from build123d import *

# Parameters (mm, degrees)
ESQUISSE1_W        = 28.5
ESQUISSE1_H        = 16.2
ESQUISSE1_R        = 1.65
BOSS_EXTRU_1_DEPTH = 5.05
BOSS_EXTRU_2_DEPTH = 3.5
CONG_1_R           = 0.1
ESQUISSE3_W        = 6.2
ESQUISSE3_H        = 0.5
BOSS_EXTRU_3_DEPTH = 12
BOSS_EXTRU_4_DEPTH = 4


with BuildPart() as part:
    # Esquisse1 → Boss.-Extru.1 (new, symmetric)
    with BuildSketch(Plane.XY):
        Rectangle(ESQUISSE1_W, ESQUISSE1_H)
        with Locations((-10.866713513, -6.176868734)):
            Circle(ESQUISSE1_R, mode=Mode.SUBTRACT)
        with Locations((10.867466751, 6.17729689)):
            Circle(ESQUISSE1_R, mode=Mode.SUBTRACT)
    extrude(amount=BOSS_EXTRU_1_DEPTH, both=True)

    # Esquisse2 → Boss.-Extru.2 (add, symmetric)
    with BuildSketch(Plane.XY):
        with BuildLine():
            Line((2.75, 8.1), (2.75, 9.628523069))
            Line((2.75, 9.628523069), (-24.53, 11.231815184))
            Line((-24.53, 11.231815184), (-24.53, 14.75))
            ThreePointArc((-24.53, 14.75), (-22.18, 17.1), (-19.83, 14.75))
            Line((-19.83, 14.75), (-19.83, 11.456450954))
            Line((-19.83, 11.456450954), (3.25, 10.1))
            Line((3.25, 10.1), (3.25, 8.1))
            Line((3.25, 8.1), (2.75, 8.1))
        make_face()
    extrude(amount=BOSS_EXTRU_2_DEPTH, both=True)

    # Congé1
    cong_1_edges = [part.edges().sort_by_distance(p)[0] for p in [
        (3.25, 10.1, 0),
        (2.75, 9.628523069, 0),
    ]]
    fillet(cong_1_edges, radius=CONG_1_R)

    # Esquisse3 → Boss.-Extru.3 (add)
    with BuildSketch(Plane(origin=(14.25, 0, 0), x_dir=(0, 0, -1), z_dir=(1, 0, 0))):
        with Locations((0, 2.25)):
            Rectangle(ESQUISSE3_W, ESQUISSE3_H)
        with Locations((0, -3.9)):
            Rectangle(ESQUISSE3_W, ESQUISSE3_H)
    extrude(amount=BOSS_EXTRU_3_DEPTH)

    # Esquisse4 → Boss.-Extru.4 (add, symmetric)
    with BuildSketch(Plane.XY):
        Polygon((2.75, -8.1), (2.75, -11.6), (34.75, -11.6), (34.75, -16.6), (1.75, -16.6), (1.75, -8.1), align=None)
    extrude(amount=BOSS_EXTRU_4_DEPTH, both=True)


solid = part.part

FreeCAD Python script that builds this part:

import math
import FreeCAD as App
import Part
import Sketcher
Q = App.Units.Quantity


def edges_at(feature, points):
    """Names of the edges that pass closest to the given points."""
    edges = feature.Shape.Edges
    near = lambda p: min(range(len(edges)), key=lambda i: edges[i].distToShape(Part.Vertex(*p))[0])
    return sorted({f"Edge{near(p) + 1}" for p in points})


def add_polygon(sketch, points):
    """Adds a closed chain of lines whose ends are joined by coincident constraints."""
    first, n = sketch.GeometryCount, len(points)
    for a, b in zip(points, points[1:] + points[:1]):
        sketch.addGeometry(Part.LineSegment(App.Vector(*a, 0), App.Vector(*b, 0)), False)
    for i in range(n):
        sketch.addConstraint(Sketcher.Constraint("Coincident", first + i, 2, first + (i + 1) % n, 1))

doc = App.newDocument("Part")
body = doc.addObject("PartDesign::Body", "Body")

# Sketch on XY plane
sketch1 = body.newObject("Sketcher::SketchObject", "Sketch")
sketch1.AttachmentSupport = (doc.getObject("XY_Plane"), [""])
sketch1.MapMode = "FlatFace"
add_polygon(sketch1, [(-14.25, 8.1), (-14.25, -8.1), (14.25, -8.1), (14.25, 8.1)])  # lines 0-3
sketch1.addGeometry(Part.Circle(App.Vector(-10.866714, -6.176869, 0), App.Vector(0, 0, 1), 1.65), False)  # 4
sketch1.addGeometry(Part.Circle(App.Vector(10.867467, 6.177297, 0), App.Vector(0, 0, 1), 1.65), False)  # 5
sketch1.addConstraint(Sketcher.Constraint("Vertical", 0))
sketch1.addConstraint(Sketcher.Constraint("Horizontal", 1))
sketch1.addConstraint(Sketcher.Constraint("Vertical", 2))
sketch1.addConstraint(Sketcher.Constraint("Horizontal", 3))
sketch1.addConstraint(Sketcher.Constraint("Equal", 4, 5))
sketch1.addConstraint(Sketcher.Constraint("Symmetric", 0, 2, 2, 2, -1, 1))
sketch1.addConstraint(Sketcher.Constraint("Diameter", 4, Q("3.3 mm")))
sketch1.addConstraint(Sketcher.Constraint("DistanceX", 1, 1, 1, 2, Q("28.5 mm")))
sketch1.addConstraint(Sketcher.Constraint("DistanceY", 0, 2, 0, 1, Q("16.2 mm")))
sketch1.addConstraint(Sketcher.Constraint("DistanceY", 4, 3, -1, 1, Q("6.176869 mm")))
sketch1.addConstraint(Sketcher.Constraint("DistanceX", 4, 3, 5, 3, Q("21.73418 mm")))
sketch1.addConstraint(Sketcher.Constraint("DistanceX", 4, 3, -1, 1, Q("10.866714 mm")))
sketch1.addConstraint(Sketcher.Constraint("DistanceY", -1, 1, 5, 3, Q("6.177297 mm")))
pad1 = body.newObject("PartDesign::Pad", "Pad")
pad1.Profile = sketch1
pad1.Length = 10.1
pad1.Midplane = True

# Sketch on XY plane
sketch2 = body.newObject("Sketcher::SketchObject", "Sketch001")
sketch2.AttachmentSupport = (doc.getObject("XY_Plane"), [""])
sketch2.MapMode = "FlatFace"
sketch2.addGeometry(Part.LineSegment(App.Vector(2.75, 9.628523, 0), App.Vector(2.75, 8.1, 0)), False)
sketch2.addGeometry(Part.LineSegment(App.Vector(2.75, 8.1, 0), App.Vector(3.25, 8.1, 0)), False)
sketch2.addGeometry(Part.LineSegment(App.Vector(3.25, 8.1, 0), App.Vector(3.25, 10.1, 0)), False)
sketch2.addGeometry(Part.LineSegment(App.Vector(3.25, 10.1, 0), App.Vector(-19.83, 11.456451, 0)), False)
sketch2.addGeometry(Part.LineSegment(App.Vector(-19.83, 11.456451, 0), App.Vector(-19.83, 14.75, 0)), False)
sketch2.addGeometry(Part.ArcOfCircle(Part.Circle(App.Vector(-22.18, 14.75, 0), App.Vector(0, 0, 1), 2.35), math.radians(0), math.radians(180)), False)
sketch2.addGeometry(Part.LineSegment(App.Vector(-24.53, 14.75, 0), App.Vector(-24.53, 11.231815, 0)), False)
sketch2.addGeometry(Part.LineSegment(App.Vector(-24.53, 11.231815, 0), App.Vector(2.75, 9.628523, 0)), False)
sketch2.addConstraint(Sketcher.Constraint("Coincident", 0, 2, 1, 1))
sketch2.addConstraint(Sketcher.Constraint("Coincident", 1, 2, 2, 1))
sketch2.addConstraint(Sketcher.Constraint("Coincident", 2, 2, 3, 1))
sketch2.addConstraint(Sketcher.Constraint("Coincident", 3, 2, 4, 1))
sketch2.addConstraint(Sketcher.Constraint("Tangent", 4, 2, 5, 1))
sketch2.addConstraint(Sketcher.Constraint("Tangent", 5, 2, 6, 1))
sketch2.addConstraint(Sketcher.Constraint("Coincident", 6, 2, 7, 1))
sketch2.addConstraint(Sketcher.Constraint("Coincident", 7, 2, 0, 1))
sketch2.addConstraint(Sketcher.Constraint("Vertical", 0))
sketch2.addConstraint(Sketcher.Constraint("Horizontal", 1))
sketch2.addConstraint(Sketcher.Constraint("Vertical", 2))
sketch2.addConstraint(Sketcher.Constraint("Vertical", 4))
sketch2.addConstraint(Sketcher.Constraint("Vertical", 6))
sketch2.addConstraint(Sketcher.Constraint("Parallel", 3, 7))
sketch2.addConstraint(Sketcher.Constraint("DistanceY", 2, 1, 2, 2, Q("2 mm")))
sketch2.addConstraint(Sketcher.Constraint("Radius", 5, Q("2.35 mm")))
sketch2.addConstraint(Sketcher.Constraint("DistanceX", 1, 1, 1, 2, Q("0.5 mm")))
sketch2.addConstraint(Sketcher.Constraint("DistanceY", -1, 1, 0, 2, Q("8.1 mm")))
sketch2.addConstraint(Sketcher.Constraint("DistanceX", 5, 3, -1, 1, Q("22.18 mm")))
sketch2.addConstraint(Sketcher.Constraint("DistanceY", -1, 1, 5, 3, Q("14.75 mm")))
sketch2.addConstraint(Sketcher.Constraint("DistanceX", -1, 1, 0, 2, Q("2.75 mm")))
sketch2.addConstraint(Sketcher.Constraint("DistanceY", 4, 1, 4, 2, Q("3.293549 mm")))
sketch2.addConstraint(Sketcher.Constraint("DistanceY", 0, 2, 0, 1, Q("1.528523 mm")))
pad2 = body.newObject("PartDesign::Pad", "Pad001")
pad2.Profile = sketch2
pad2.Length = 7
pad2.Midplane = True
doc.recompute()

fillet = body.newObject("PartDesign::Fillet", "Fillet")
fillet.Base = (pad2, edges_at(pad2, [(3.25, 10.1, 0), (2.75, 9.629, 0)]))
fillet.Radius = 0.1

# Sketch on YZ plane
sketch3 = body.newObject("Sketcher::SketchObject", "Sketch002")
sketch3.AttachmentSupport = (doc.getObject("YZ_Plane"), [""])
sketch3.MapMode = "FlatFace"
sketch3.AttachmentOffset = App.Placement(App.Vector(0, 0, 14.25), App.Rotation())
add_polygon(sketch3, [(2.5, 3.1), (2, 3.1), (2, -3.1), (2.5, -3.1)])  # lines 0-3
add_polygon(sketch3, [(-3.65, 3.1), (-4.15, 3.1), (-4.15, -3.1), (-3.65, -3.1)])  # lines 4-7
sketch3.addConstraint(Sketcher.Constraint("Horizontal", 0))
sketch3.addConstraint(Sketcher.Constraint("Vertical", 1))
sketch3.addConstraint(Sketcher.Constraint("Horizontal", 2))
sketch3.addConstraint(Sketcher.Constraint("Vertical", 3))
sketch3.addConstraint(Sketcher.Constraint("Horizontal", 4))
sketch3.addConstraint(Sketcher.Constraint("Vertical", 5))
sketch3.addConstraint(Sketcher.Constraint("Horizontal", 6))
sketch3.addConstraint(Sketcher.Constraint("Vertical", 7))
sketch3.addConstraint(Sketcher.Constraint("Horizontal", 3, 2, 4, 2))
sketch3.addConstraint(Sketcher.Constraint("Horizontal", 2, 2, 5, 2))
sketch3.addConstraint(Sketcher.Constraint("Equal", 2, 4))
sketch3.addConstraint(Sketcher.Constraint("DistanceX", 0, 2, 0, 1, Q("0.5 mm")))
sketch3.addConstraint(Sketcher.Constraint("DistanceY", 1, 2, 1, 1, Q("6.2 mm")))
sketch3.addConstraint(Sketcher.Constraint("DistanceX", -1, 1, 0, 2, Q("2 mm")))
sketch3.addConstraint(Sketcher.Constraint("DistanceY", -1, 1, 0, 2, Q("3.1 mm")))
sketch3.addConstraint(Sketcher.Constraint("DistanceX", 4, 2, -1, 1, Q("4.15 mm")))
pad3 = body.newObject("PartDesign::Pad", "Pad002")
pad3.Profile = sketch3
pad3.Length = 12

# Sketch on XY plane
sketch4 = body.newObject("Sketcher::SketchObject", "Sketch003")
sketch4.AttachmentSupport = (doc.getObject("XY_Plane"), [""])
sketch4.MapMode = "FlatFace"
add_polygon(sketch4, [(2.75, -11.6), (2.75, -8.1), (1.75, -8.1), (1.75, -16.6), (34.75, -16.6), (34.75, -11.6)])  # lines 0-5
sketch4.addConstraint(Sketcher.Constraint("Vertical", 0))
sketch4.addConstraint(Sketcher.Constraint("Horizontal", 1))
sketch4.addConstraint(Sketcher.Constraint("Vertical", 2))
sketch4.addConstraint(Sketcher.Constraint("Horizontal", 3))
sketch4.addConstraint(Sketcher.Constraint("Vertical", 4))
sketch4.addConstraint(Sketcher.Constraint("Horizontal", 5))
sketch4.addConstraint(Sketcher.Constraint("DistanceX", 1, 2, 1, 1, Q("1 mm")))
sketch4.addConstraint(Sketcher.Constraint("DistanceX", 3, 1, 3, 2, Q("33 mm")))
sketch4.addConstraint(Sketcher.Constraint("DistanceY", 4, 1, 4, 2, Q("5 mm")))
sketch4.addConstraint(Sketcher.Constraint("DistanceY", 0, 1, 0, 2, Q("3.5 mm")))
sketch4.addConstraint(Sketcher.Constraint("DistanceY", 0, 2, -1, 1, Q("8.1 mm")))
sketch4.addConstraint(Sketcher.Constraint("DistanceX", -1, 1, 0, 2, Q("2.75 mm")))
pad4 = body.newObject("PartDesign::Pad", "Pad003")
pad4.Profile = sketch4
pad4.Length = 8
pad4.Midplane = True

doc.recompute()
